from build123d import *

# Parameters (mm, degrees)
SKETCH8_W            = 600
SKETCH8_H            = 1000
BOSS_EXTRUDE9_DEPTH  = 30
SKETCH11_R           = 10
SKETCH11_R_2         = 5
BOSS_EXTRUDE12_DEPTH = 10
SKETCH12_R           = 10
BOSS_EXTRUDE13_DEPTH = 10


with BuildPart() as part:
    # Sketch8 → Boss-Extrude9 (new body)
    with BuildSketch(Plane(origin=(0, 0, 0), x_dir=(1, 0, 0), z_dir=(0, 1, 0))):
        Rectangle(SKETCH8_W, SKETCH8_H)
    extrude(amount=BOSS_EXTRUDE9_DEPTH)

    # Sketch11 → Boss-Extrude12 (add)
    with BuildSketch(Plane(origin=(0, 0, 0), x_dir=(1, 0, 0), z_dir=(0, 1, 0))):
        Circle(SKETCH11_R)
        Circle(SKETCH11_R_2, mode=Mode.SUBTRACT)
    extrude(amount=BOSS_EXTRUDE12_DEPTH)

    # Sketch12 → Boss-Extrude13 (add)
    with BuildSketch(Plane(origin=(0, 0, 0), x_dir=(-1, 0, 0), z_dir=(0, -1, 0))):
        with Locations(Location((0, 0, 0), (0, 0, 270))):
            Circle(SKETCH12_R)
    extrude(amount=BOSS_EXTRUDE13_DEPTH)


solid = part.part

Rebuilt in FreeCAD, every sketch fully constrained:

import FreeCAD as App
import Part
import Sketcher
from FreeCAD import Vector

doc = App.newDocument("Part")
body = doc.addObject("PartDesign::Body", "Body")

# Sketch on XZ plane
sketch1 = body.newObject("Sketcher::SketchObject", "Sketch")
sketch1.AttachmentSupport = (doc.getObject("XZ_Plane"), [""])
sketch1.MapMode = "FlatFace"
sketch1.addGeometry([
    Part.LineSegment(Vector(-300, -500, 0), Vector(-300, 500, 0)),
    Part.LineSegment(Vector(-300, 500, 0), Vector(300, 500, 0)),
    Part.LineSegment(Vector(300, 500, 0), Vector(300, -500, 0)),
    Part.LineSegment(Vector(300, -500, 0), Vector(-300, -500, 0)),
], False)
sketch1.addConstraint([
    Sketcher.Constraint("Coincident", 0, 2, 1, 1),
    Sketcher.Constraint("Coincident", 1, 2, 2, 1),
    Sketcher.Constraint("Coincident", 2, 2, 3, 1),
    Sketcher.Constraint("Coincident", 3, 2, 0, 1),
    Sketcher.Constraint("Vertical", 0),
    Sketcher.Constraint("Horizontal", 1),
    Sketcher.Constraint("Vertical", 2),
    Sketcher.Constraint("Horizontal", 3),
    Sketcher.Constraint("Symmetric", 0, 2, 2, 2, -1, 1),
    Sketcher.Constraint("DistanceX", 1, 1, 1, 2, 600.0),
    Sketcher.Constraint("DistanceY", 0, 1, 0, 2, 1000.0),
])
pad1 = body.newObject("PartDesign::Pad", "Pad")
pad1.Profile = sketch1
pad1.Length = 30
pad1.Reversed = True

# Sketch on XZ plane
sketch2 = body.newObject("Sketcher::SketchObject", "Sketch001")
sketch2.AttachmentSupport = (doc.getObject("XZ_Plane"), [""])
sketch2.MapMode = "FlatFace"
sketch2.addGeometry([
    Part.Circle(Vector(0, 0, 0), Vector(0, 0, 1), 10),
    Part.Circle(Vector(0, 0, 0), Vector(0, 0, 1), 5),
], False)
sketch2.addConstraint([
    Sketcher.Constraint("Coincident", 0, 3, -1, 1),
    Sketcher.Constraint("Coincident", 1, 3, -1, 1),
    Sketcher.Constraint("Diameter", 0, 20.0),
    Sketcher.Constraint("Diameter", 1, 10.0),
])
pad2 = body.newObject("PartDesign::Pad", "Pad001")
pad2.Profile = sketch2
pad2.Length = 10
pad2.Reversed = True

# Sketch on XZ plane
sketch3 = body.newObject("Sketcher::SketchObject", "Sketch002")
sketch3.AttachmentSupport = (doc.getObject("XZ_Plane"), [""])
sketch3.MapMode = "FlatFace"
sketch3.addGeometry(Part.Circle(Vector(0, 0, 0), Vector(0, 0, 1), 10), False)
sketch3.addConstraint([
    Sketcher.Constraint("Coincident", 0, 3, -1, 1),
    Sketcher.Constraint("Diameter", 0, 20.0),
])
pad3 = body.newObject("PartDesign::Pad", "Pad002")
pad3.Profile = sketch3
pad3.Length = 10

doc.recompute()
